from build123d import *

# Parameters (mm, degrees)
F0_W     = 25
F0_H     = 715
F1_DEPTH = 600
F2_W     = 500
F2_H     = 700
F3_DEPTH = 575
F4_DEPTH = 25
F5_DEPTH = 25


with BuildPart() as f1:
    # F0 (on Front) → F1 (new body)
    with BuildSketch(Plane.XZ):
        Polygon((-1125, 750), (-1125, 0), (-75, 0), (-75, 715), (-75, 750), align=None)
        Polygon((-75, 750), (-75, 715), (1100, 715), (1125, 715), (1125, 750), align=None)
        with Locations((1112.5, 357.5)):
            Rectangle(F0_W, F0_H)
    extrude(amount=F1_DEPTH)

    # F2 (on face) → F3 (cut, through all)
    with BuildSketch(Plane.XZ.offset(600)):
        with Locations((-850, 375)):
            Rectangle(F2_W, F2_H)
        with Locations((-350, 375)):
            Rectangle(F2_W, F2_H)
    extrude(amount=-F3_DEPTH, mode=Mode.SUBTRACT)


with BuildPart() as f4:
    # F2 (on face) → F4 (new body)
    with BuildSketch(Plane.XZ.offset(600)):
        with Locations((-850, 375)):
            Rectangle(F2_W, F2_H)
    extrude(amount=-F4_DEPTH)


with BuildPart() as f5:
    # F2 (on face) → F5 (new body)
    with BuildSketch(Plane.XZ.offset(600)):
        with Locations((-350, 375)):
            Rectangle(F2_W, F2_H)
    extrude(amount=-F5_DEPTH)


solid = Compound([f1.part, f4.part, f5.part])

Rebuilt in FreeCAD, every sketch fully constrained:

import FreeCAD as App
import Part
import Sketcher
from FreeCAD import Vector


def add_polygon(sketch, points):
    """Adds a closed chain of lines whose ends are joined by coincident constraints."""
    first, n = sketch.GeometryCount, len(points)
    for a, b in zip(points, points[1:] + points[:1]):
        sketch.addGeometry(Part.LineSegment(App.Vector(*a, 0), App.Vector(*b, 0)), False)
    for i in range(n):
        sketch.addConstraint(Sketcher.Constraint("Coincident", first + i, 2, first + (i + 1) % n, 1))

doc = App.newDocument("Part")
params = doc.addObject("Spreadsheet::Sheet", "Params")
for row, (alias, value) in enumerate([
    ("sketch1_width", "1050 mm"),
    ("sketch1_width2", "1175 mm"),
    ("sketch1_width3", "25 mm"),
    ("sketch1_height", "750 mm"),
    ("sketch1_height2", "715 mm"),
    ("pad1_length", "600 mm"),
    ("sketch2_width", "1000 mm"),
    ("sketch2_height", "700 mm"),
    ("pocket1_length", "575 mm"),
    ("sketch3_width", "500 mm"),
    ("sketch3_height", "700 mm"),
    ("pad2_length", "25 mm"),
    ("sketch4_width", "500 mm"),
    ("sketch4_height", "700 mm"),
    ("pad3_length", "25 mm"),
], start=1):
    params.set(f"A{row}", alias)
    params.set(f"B{row}", "=" + value)
    params.setAlias(f"B{row}", alias)

body = doc.addObject("PartDesign::Body", "Body")

# Sketch on XZ plane
sketch1 = doc.addObject("Sketcher::SketchObject", "Sketch")
body.addObject(sketch1)
sketch1.AttachmentSupport = (doc.XZ_Plane, [""])
sketch1.MapMode = "FlatFace"
add_polygon(sketch1, [(-1125, 750), (-1125, 0), (-75, 0), (-75, 715), (1100, 715), (1100, 0), (1125, 0), (1125, 750)])  # lines 0-7
sketch1.addConstraint(Sketcher.Constraint("Vertical", 0))
sketch1.addConstraint(Sketcher.Constraint("Horizontal", 1))
sketch1.addConstraint(Sketcher.Constraint("Vertical", 2))
sketch1.addConstraint(Sketcher.Constraint("Horizontal", 3))
sketch1.addConstraint(Sketcher.Constraint("Vertical", 4))
sketch1.addConstraint(Sketcher.Constraint("Horizontal", 5))
sketch1.addConstraint(Sketcher.Constraint("Vertical", 6))
sketch1.addConstraint(Sketcher.Constraint("Horizontal", 7))
sketch1.addConstraint(Sketcher.Constraint("Symmetric", 0, 2, 5, 2, -1, 1))
sketch1.addConstraint(Sketcher.Constraint("PointOnObject", 0, 2, -1))
sketch1.addConstraint(Sketcher.Constraint("DistanceX", 1, 1, 1, 2, 1050.0))
sketch1.addConstraint(Sketcher.Constraint("DistanceX", 3, 1, 3, 2, 1175.0))
sketch1.addConstraint(Sketcher.Constraint("DistanceX", 5, 1, 5, 2, 25.0))
sketch1.addConstraint(Sketcher.Constraint("DistanceY", 0, 2, 0, 1, 750.0))
sketch1.addConstraint(Sketcher.Constraint("DistanceY", 2, 1, 2, 2, 715.0))
sketch1.setExpression("Constraints[18]", "Params.sketch1_width")
sketch1.setExpression("Constraints[19]", "Params.sketch1_width2")
sketch1.setExpression("Constraints[20]", "Params.sketch1_width3")
sketch1.setExpression("Constraints[21]", "Params.sketch1_height")
sketch1.setExpression("Constraints[22]", "Params.sketch1_height2")
pad1 = doc.addObject("PartDesign::Pad", "Pad")
body.addObject(pad1)
pad1.Profile = sketch1
pad1.setExpression("Length", "Params.pad1_length")

# Sketch on XZ plane
sketch2 = doc.addObject("Sketcher::SketchObject", "Sketch001")
body.addObject(sketch2)
sketch2.AttachmentSupport = (doc.XZ_Plane, [""])
sketch2.MapMode = "FlatFace"
sketch2.AttachmentOffset = App.Placement(Vector(0, 0, 600), App.Rotation())
add_polygon(sketch2, [(-1100, 725), (-1100, 25), (-100, 25), (-100, 725)])  # lines 0-3
sketch2.addConstraint(Sketcher.Constraint("Vertical", 0))
sketch2.addConstraint(Sketcher.Constraint("Horizontal", 1))
sketch2.addConstraint(Sketcher.Constraint("Vertical", 2))
sketch2.addConstraint(Sketcher.Constraint("Horizontal", 3))
sketch2.addConstraint(Sketcher.Constraint("DistanceX", 1, 1, 1, 2, 1000.0))
sketch2.addConstraint(Sketcher.Constraint("DistanceY", 0, 2, 0, 1, 700.0))
sketch2.addConstraint(Sketcher.Constraint("DistanceX", 0, 2, -1, 1, 1100.0))
sketch2.addConstraint(Sketcher.Constraint("DistanceY", -1, 1, 0, 2, 25.0))
sketch2.setExpression("Constraints[8]", "Params.sketch2_width")
sketch2.setExpression("Constraints[9]", "Params.sketch2_height")
pocket1 = doc.addObject("PartDesign::Pocket", "Pocket")
body.addObject(pocket1)
pocket1.Profile = sketch2
pocket1.setExpression("Length", "Params.pocket1_length")
body2 = doc.addObject("PartDesign::Body", "Body001")

# Sketch on XZ plane
sketch3 = doc.addObject("Sketcher::SketchObject", "Sketch002")
body2.addObject(sketch3)
sketch3.AttachmentSupport = (doc.getObject("XZ_Plane001"), [""])
sketch3.MapMode = "FlatFace"
sketch3.AttachmentOffset = App.Placement(Vector(0, 0, 600), App.Rotation())
add_polygon(sketch3, [(-1100, 725), (-1100, 25), (-600, 25), (-600, 725)])  # lines 0-3
sketch3.addConstraint(Sketcher.Constraint("Vertical", 0))
sketch3.addConstraint(Sketcher.Constraint("Horizontal", 1))
sketch3.addConstraint(Sketcher.Constraint("Vertical", 2))
sketch3.addConstraint(Sketcher.Constraint("Horizontal", 3))
sketch3.addConstraint(Sketcher.Constraint("DistanceX", 1, 1, 1, 2, 500.0))
sketch3.addConstraint(Sketcher.Constraint("DistanceY", 0, 2, 0, 1, 700.0))
sketch3.addConstraint(Sketcher.Constraint("DistanceX", 0, 2, -1, 1, 1100.0))
sketch3.addConstraint(Sketcher.Constraint("DistanceY", -1, 1, 0, 2, 25.0))
sketch3.setExpression("Constraints[8]", "Params.sketch3_width")
sketch3.setExpression("Constraints[9]", "Params.sketch3_height")
pad2 = doc.addObject("PartDesign::Pad", "Pad001")
body2.addObject(pad2)
pad2.Profile = sketch3
pad2.setExpression("Length", "Params.pad2_length")
pad2.Reversed = True
body3 = doc.addObject("PartDesign::Body", "Body002")

# Sketch on XZ plane
sketch4 = doc.addObject("Sketcher::SketchObject", "Sketch003")
body3.addObject(sketch4)
sketch4.AttachmentSupport = (doc.getObject("XZ_Plane002"), [""])
sketch4.MapMode = "FlatFace"
sketch4.AttachmentOffset = App.Placement(Vector(0, 0, 600), App.Rotation())
add_polygon(sketch4, [(-600, 725), (-600, 25), (-100, 25), (-100, 725)])  # lines 0-3
sketch4.addConstraint(Sketcher.Constraint("Vertical", 0))
sketch4.addConstraint(Sketcher.Constraint("Horizontal", 1))
sketch4.addConstraint(Sketcher.Constraint("Vertical", 2))
sketch4.addConstraint(Sketcher.Constraint("Horizontal", 3))
sketch4.addConstraint(Sketcher.Constraint("DistanceX", 1, 1, 1, 2, 500.0))
sketch4.addConstraint(Sketcher.Constraint("DistanceY", 0, 2, 0, 1, 700.0))
sketch4.addConstraint(Sketcher.Constraint("DistanceX", 0, 2, -1, 1, 600.0))
sketch4.addConstraint(Sketcher.Constraint("DistanceY", -1, 1, 0, 2, 25.0))
sketch4.setExpression("Constraints[8]", "Params.sketch4_width")
sketch4.setExpression("Constraints[9]", "Params.sketch4_height")
pad3 = doc.addObject("PartDesign::Pad", "Pad002")
body3.addObject(pad3)
pad3.Profile = sketch4
pad3.setExpression("Length", "Params.pad3_length")
pad3.Reversed = True

doc.recompute()
